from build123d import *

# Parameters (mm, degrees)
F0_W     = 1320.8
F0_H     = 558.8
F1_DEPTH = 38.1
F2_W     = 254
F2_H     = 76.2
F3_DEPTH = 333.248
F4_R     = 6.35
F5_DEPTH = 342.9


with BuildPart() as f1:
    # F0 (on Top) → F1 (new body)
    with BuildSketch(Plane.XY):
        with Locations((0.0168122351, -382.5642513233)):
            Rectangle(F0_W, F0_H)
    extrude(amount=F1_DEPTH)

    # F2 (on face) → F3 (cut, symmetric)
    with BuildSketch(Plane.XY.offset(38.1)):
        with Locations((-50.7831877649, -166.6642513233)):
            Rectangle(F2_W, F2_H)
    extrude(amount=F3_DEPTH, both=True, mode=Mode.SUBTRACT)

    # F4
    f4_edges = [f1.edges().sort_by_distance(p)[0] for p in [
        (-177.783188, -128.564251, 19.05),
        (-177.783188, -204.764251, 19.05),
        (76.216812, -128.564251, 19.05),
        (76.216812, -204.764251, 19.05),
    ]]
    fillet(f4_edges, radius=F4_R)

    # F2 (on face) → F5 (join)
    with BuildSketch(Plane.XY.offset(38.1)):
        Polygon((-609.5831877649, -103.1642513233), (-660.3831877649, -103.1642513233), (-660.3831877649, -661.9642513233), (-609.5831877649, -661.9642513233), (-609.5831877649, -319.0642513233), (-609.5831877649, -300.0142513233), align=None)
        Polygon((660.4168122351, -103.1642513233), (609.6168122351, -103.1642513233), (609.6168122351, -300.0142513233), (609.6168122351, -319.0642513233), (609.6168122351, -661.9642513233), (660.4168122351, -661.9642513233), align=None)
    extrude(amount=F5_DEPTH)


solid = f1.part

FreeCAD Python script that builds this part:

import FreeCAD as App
import Part
import Sketcher

V = App.Vector
Q = App.Units.Quantity


def edges_at(feature, points):
    """Names of the edges that pass closest to the given points."""
    edges = feature.Shape.Edges
    near = lambda p: min(range(len(edges)), key=lambda i: edges[i].distToShape(Part.Vertex(*p))[0])
    return sorted({f"Edge{near(p) + 1}" for p in points})


def add_polygon(sketch, points):
    """Adds a closed chain of lines whose ends are joined by coincident constraints."""
    first, n = sketch.GeometryCount, len(points)
    for a, b in zip(points, points[1:] + points[:1]):
        sketch.addGeometry(Part.LineSegment(App.Vector(*a, 0), App.Vector(*b, 0)), False)
    for i in range(n):
        sketch.addConstraint(Sketcher.Constraint("Coincident", first + i, 2, first + (i + 1) % n, 1))

doc = App.newDocument("Part")
params = doc.addObject("Spreadsheet::Sheet", "Params")
for row, (alias, value) in enumerate([
    ("sketch1_width", "52 in"),
    ("sketch1_height", "22 in"),
    ("pad1_length", "1.5 in"),
    ("sketch2_width", "10 in"),
    ("sketch2_height", "3 in"),
    ("pocket1_length", "26.24 in"),
    ("fillet_radius", "0.25 in"),
    ("sketch3_width", "2 in"),
    ("sketch3_height", "22 in"),
    ("pad2_length", "13.5 in"),
], start=1):
    params.set(f"A{row}", alias)
    params.set(f"B{row}", "=" + value)
    params.setAlias(f"B{row}", alias)

body = doc.addObject("PartDesign::Body", "Body")

# Sketch on XY plane
sketch1 = body.newObject("Sketcher::SketchObject", "Sketch")
sketch1.AttachmentSupport = (doc.getObject("XY_Plane"), [""])
sketch1.MapMode = "FlatFace"
add_polygon(sketch1, [(-660, -103), (-660, -662), (660, -662), (660, -103)])  # lines 0-3
sketch1.addConstraint(Sketcher.Constraint("Vertical", 0))
sketch1.addConstraint(Sketcher.Constraint("Horizontal", 1))
sketch1.addConstraint(Sketcher.Constraint("Vertical", 2))
sketch1.addConstraint(Sketcher.Constraint("Horizontal", 3))
sketch1.addConstraint(Sketcher.Constraint("DistanceX", 1, 1, 1, 2, Q("52 in")))
sketch1.addConstraint(Sketcher.Constraint("DistanceY", 0, 2, 0, 1, Q("22 in")))
sketch1.addConstraint(Sketcher.Constraint("DistanceY", 0, 2, -1, 1, 661.964251))
sketch1.addConstraint(Sketcher.Constraint("DistanceX", 0, 2, -1, 1, 660.383188))
sketch1.setExpression("Constraints[8]", "Params.sketch1_width")
sketch1.setExpression("Constraints[9]", "Params.sketch1_height")
pad1 = body.newObject("PartDesign::Pad", "Pad")
pad1.Profile = sketch1
pad1.setExpression("Length", "Params.pad1_length")

# Sketch on XY plane
sketch2 = body.newObject("Sketcher::SketchObject", "Sketch001")
sketch2.AttachmentSupport = (doc.getObject("XY_Plane"), [""])
sketch2.MapMode = "FlatFace"
sketch2.AttachmentOffset = App.Placement(V(0, 0, 1.5 * 25.4), App.Rotation())
add_polygon(sketch2, [(-178, -129), (-178, -205), (76, -205), (76, -129)])  # lines 0-3
sketch2.addConstraint(Sketcher.Constraint("Vertical", 0))
sketch2.addConstraint(Sketcher.Constraint("Horizontal", 1))
sketch2.addConstraint(Sketcher.Constraint("Vertical", 2))
sketch2.addConstraint(Sketcher.Constraint("Horizontal", 3))
sketch2.addConstraint(Sketcher.Constraint("DistanceX", 1, 1, 1, 2, Q("10 in")))
sketch2.addConstraint(Sketcher.Constraint("DistanceY", 0, 2, 0, 1, Q("3 in")))
sketch2.addConstraint(Sketcher.Constraint("DistanceY", 0, 2, -1, 1, 204.764251))
sketch2.addConstraint(Sketcher.Constraint("DistanceX", 0, 2, -1, 1, 177.783188))
sketch2.setExpression("Constraints[8]", "Params.sketch2_width")
sketch2.setExpression("Constraints[9]", "Params.sketch2_height")
pocket1 = body.newObject("PartDesign::Pocket", "Pocket")
pocket1.Profile = sketch2
pocket1.setExpression("Length", "Params.pocket1_length")
pocket1.Midplane = True
doc.recompute()

fillet = body.newObject("PartDesign::Fillet", "Fillet")
fillet.Base = (pocket1, edges_at(pocket1, [
    (-177.783, -128.564, 19.05),
    (-177.783, -204.764, 19.05),
    (76.217, -128.564, 19.05),
    (76.217, -204.764, 19.05),
]))
fillet.setExpression("Radius", "Params.fillet_radius")

# Sketch on XY plane
sketch3 = body.newObject("Sketcher::SketchObject", "Sketch002")
sketch3.AttachmentSupport = (doc.getObject("XY_Plane"), [""])
sketch3.MapMode = "FlatFace"
sketch3.AttachmentOffset = App.Placement(V(0, 0, 1.5 * 25.4), App.Rotation())
add_polygon(sketch3, [(-610, -103), (-660, -103), (-660, -662), (-610, -662)])  # lines 0-3
add_polygon(sketch3, [(660, -103), (610, -103), (610, -662), (660, -662)])  # lines 4-7
sketch3.addConstraint(Sketcher.Constraint("Horizontal", 0))
sketch3.addConstraint(Sketcher.Constraint("Vertical", 1))
sketch3.addConstraint(Sketcher.Constraint("Horizontal", 2))
sketch3.addConstraint(Sketcher.Constraint("Vertical", 3))
sketch3.addConstraint(Sketcher.Constraint("Horizontal", 4))
sketch3.addConstraint(Sketcher.Constraint("Vertical", 5))
sketch3.addConstraint(Sketcher.Constraint("Horizontal", 6))
sketch3.addConstraint(Sketcher.Constraint("Vertical", 7))
sketch3.addConstraint(Sketcher.Constraint("Horizontal", 3, 2, 4, 2))
sketch3.addConstraint(Sketcher.Constraint("Horizontal", 2, 2, 5, 2))
sketch3.addConstraint(Sketcher.Constraint("Equal", 2, 4))
sketch3.addConstraint(Sketcher.Constraint("DistanceX", 0, 2, 0, 1, Q("2 in")))
sketch3.addConstraint(Sketcher.Constraint("DistanceY", 1, 2, 1, 1, Q("22 in")))
sketch3.addConstraint(Sketcher.Constraint("DistanceX", 3, 2, 4, 2, Q("48 in")))
sketch3.addConstraint(Sketcher.Constraint("DistanceY", 0, 2, -1, 1, 103.164251))
sketch3.addConstraint(Sketcher.Constraint("DistanceX", 0, 2, -1, 1, 660.383188))
sketch3.setExpression("Constraints[19]", "Params.sketch3_width")
sketch3.setExpression("Constraints[20]", "Params.sketch3_height")
pad2 = body.newObject("PartDesign::Pad", "Pad001")
pad2.Profile = sketch3
pad2.setExpression("Length", "Params.pad2_length")

doc.recompute()
